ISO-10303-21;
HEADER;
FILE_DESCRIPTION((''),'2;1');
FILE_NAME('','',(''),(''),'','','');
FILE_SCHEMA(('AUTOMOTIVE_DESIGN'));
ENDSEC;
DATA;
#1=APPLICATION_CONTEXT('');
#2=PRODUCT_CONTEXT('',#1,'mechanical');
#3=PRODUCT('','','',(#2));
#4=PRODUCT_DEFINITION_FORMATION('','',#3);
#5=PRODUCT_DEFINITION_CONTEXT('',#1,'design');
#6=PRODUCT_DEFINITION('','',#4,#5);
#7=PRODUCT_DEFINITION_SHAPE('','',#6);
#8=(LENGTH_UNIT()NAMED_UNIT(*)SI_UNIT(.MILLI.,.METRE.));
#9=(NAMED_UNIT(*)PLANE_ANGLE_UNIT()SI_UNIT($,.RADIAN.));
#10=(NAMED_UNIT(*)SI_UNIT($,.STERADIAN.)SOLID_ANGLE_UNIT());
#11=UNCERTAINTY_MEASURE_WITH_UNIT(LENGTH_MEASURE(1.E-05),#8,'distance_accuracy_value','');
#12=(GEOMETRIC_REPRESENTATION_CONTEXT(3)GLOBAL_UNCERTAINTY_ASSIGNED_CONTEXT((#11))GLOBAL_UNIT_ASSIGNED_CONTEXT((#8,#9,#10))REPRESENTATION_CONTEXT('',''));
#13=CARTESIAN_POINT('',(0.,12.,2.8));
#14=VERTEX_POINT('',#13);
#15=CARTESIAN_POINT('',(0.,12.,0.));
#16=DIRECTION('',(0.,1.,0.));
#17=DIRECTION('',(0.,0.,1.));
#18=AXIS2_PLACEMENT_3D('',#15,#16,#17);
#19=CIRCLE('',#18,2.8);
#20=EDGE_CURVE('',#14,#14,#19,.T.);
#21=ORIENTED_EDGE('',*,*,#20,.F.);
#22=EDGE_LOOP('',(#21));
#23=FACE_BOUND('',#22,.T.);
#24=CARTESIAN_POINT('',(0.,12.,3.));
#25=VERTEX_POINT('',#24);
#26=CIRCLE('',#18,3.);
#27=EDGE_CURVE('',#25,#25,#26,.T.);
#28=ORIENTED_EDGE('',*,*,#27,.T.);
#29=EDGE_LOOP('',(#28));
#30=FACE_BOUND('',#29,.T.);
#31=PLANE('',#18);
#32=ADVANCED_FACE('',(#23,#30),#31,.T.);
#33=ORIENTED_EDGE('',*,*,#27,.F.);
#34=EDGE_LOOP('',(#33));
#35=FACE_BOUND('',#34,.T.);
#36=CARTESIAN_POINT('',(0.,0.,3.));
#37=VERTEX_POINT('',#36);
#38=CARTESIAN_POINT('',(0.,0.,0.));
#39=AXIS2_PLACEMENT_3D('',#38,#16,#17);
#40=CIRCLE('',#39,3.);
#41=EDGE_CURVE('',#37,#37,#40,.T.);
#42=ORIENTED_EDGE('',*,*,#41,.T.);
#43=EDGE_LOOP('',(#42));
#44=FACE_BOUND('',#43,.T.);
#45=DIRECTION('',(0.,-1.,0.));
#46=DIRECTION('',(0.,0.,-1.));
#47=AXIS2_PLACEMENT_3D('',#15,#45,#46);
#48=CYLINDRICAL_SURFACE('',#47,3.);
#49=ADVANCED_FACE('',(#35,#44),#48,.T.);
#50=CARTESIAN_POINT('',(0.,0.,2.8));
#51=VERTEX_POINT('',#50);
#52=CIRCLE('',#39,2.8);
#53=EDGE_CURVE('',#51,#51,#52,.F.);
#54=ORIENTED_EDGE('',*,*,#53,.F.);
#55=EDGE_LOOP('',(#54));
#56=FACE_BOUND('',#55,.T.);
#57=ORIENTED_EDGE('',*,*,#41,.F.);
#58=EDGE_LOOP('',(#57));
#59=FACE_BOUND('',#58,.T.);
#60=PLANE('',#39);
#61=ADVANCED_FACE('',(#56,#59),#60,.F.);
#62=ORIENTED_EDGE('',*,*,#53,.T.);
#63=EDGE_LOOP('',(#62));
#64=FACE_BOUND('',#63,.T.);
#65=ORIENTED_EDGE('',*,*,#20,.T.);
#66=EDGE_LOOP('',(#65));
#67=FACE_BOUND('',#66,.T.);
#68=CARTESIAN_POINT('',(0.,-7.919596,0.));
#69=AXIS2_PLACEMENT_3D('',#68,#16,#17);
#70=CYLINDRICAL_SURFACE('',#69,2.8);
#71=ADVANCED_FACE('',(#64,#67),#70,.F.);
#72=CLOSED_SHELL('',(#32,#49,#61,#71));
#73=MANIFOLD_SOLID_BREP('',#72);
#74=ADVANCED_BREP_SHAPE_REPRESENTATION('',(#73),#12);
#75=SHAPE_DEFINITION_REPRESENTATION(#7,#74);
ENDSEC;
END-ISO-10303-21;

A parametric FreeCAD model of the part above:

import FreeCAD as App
import Part
import Sketcher

V = App.Vector
Q = App.Units.Quantity

doc = App.newDocument("Part")
body = doc.addObject("PartDesign::Body", "Body")

sketch1 = body.newObject("Sketcher::SketchObject", "Sketch")
sketch1.AttachmentSupport = (doc.getObject("XZ_Plane"), [""])
sketch1.MapMode = "FlatFace"
sketch1.addGeometry(Part.Circle(V(0, 0, 0), V(0, 0, 1), 3), False)
sketch1.addConstraint([
    Sketcher.Constraint("Coincident", 0, 3, -1, 1),
    Sketcher.Constraint("Diameter", 0, Q("6 mm")),
])
pad1 = body.newObject("PartDesign::Pad", "Pad")
pad1.Profile = sketch1
pad1.Length = 12
pad1.Reversed = True

sketch2 = body.newObject("Sketcher::SketchObject", "Sketch001")
sketch2.AttachmentSupport = (doc.getObject("XZ_Plane"), [""])
sketch2.MapMode = "FlatFace"
sketch2.AttachmentOffset = App.Placement(V(0, 0, -12), App.Rotation())
sketch2.addGeometry(Part.Circle(V(0, 0, 0), V(0, 0, 1), 2.8), False)
sketch2.addConstraint([
    Sketcher.Constraint("Coincident", 0, 3, -1, 1),
    Sketcher.Constraint("Diameter", 0, Q("5.6 mm")),
])
pocket1 = body.newObject("PartDesign::Pocket", "Pocket")
pocket1.Profile = sketch2
pocket1.Length = 12
pocket1.Reversed = True

doc.recompute()
